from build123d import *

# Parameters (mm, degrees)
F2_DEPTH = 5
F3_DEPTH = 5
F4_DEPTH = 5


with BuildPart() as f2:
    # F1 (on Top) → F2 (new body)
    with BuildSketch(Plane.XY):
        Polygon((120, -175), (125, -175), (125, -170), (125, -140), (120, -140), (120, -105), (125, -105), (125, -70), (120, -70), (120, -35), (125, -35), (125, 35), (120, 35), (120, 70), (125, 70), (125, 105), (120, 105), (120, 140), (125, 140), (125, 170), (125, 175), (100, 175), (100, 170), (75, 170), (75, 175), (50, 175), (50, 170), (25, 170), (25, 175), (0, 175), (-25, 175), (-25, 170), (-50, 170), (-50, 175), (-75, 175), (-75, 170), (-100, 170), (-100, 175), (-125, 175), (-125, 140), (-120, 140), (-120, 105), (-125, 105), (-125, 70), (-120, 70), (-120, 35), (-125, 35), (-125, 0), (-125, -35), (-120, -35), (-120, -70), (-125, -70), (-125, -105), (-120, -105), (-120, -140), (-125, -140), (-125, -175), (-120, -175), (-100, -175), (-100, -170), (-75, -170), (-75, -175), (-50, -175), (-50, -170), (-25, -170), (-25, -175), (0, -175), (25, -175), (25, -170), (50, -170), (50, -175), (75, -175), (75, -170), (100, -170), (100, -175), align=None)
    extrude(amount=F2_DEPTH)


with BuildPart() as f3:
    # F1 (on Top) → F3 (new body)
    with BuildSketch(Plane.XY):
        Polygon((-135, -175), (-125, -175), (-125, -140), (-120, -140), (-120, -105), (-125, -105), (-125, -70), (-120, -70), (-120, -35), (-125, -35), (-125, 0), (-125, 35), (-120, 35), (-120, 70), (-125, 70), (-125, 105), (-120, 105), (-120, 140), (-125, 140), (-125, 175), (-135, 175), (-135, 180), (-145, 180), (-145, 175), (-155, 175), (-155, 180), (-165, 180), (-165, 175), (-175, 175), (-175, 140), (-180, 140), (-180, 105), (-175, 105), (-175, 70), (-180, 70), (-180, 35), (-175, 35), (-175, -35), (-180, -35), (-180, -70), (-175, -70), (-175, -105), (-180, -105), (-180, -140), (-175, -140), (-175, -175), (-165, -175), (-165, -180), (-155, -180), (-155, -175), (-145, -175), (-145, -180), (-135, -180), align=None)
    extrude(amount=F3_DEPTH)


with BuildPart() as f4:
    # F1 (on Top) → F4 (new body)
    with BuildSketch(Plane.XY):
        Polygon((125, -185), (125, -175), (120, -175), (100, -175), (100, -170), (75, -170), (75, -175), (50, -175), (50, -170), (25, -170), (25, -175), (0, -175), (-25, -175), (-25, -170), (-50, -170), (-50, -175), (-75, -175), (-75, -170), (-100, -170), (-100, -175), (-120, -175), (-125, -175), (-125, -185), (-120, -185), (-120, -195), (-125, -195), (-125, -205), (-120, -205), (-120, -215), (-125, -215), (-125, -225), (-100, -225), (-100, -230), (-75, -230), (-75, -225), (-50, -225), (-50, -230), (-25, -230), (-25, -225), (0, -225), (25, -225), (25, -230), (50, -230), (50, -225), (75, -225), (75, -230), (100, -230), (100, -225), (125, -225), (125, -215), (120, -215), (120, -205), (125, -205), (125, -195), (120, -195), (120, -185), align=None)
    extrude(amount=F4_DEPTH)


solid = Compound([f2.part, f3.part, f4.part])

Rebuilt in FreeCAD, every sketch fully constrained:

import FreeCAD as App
import Part
import Sketcher
Q = App.Units.Quantity

doc = App.newDocument("Part")
body = doc.addObject("PartDesign::Body", "Body")

# Sketch on XY plane
sketch1 = body.newObject("Sketcher::SketchObject", "Sketch")
sketch1.AttachmentSupport = (doc.getObject("XY_Plane"), [""])
sketch1.MapMode = "FlatFace"
sketch1.addGeometry(Part.LineSegment(App.Vector(125, -175, 0), App.Vector(125, -140, 0)), False)
sketch1.addGeometry(Part.LineSegment(App.Vector(125, -140, 0), App.Vector(120, -140, 0)), False)
sketch1.addGeometry(Part.LineSegment(App.Vector(120, -140, 0), App.Vector(120, -105, 0)), False)
sketch1.addGeometry(Part.LineSegment(App.Vector(120, -105, 0), App.Vector(125, -105, 0)), False)
sketch1.addGeometry(Part.LineSegment(App.Vector(125, -105, 0), App.Vector(125, -70, 0)), False)
sketch1.addGeometry(Part.LineSegment(App.Vector(125, -70, 0), App.Vector(120, -70, 0)), False)
sketch1.addGeometry(Part.LineSegment(App.Vector(120, -70, 0), App.Vector(120, -35, 0)), False)
sketch1.addGeometry(Part.LineSegment(App.Vector(120, -35, 0), App.Vector(125, -35, 0)), False)
sketch1.addGeometry(Part.LineSegment(App.Vector(125, -35, 0), App.Vector(125, 35, 0)), False)
sketch1.addGeometry(Part.LineSegment(App.Vector(125, 35, 0), App.Vector(120, 35, 0)), False)
sketch1.addGeometry(Part.LineSegment(App.Vector(120, 35, 0), App.Vector(120, 70, 0)), False)
sketch1.addGeometry(Part.LineSegment(App.Vector(120, 70, 0), App.Vector(125, 70, 0)), False)
sketch1.addGeometry(Part.LineSegment(App.Vector(125, 70, 0), App.Vector(125, 105, 0)), False)
sketch1.addGeometry(Part.LineSegment(App.Vector(125, 105, 0), App.Vector(120, 105, 0)), False)
sketch1.addGeometry(Part.LineSegment(App.Vector(120, 105, 0), App.Vector(120, 140, 0)), False)
sketch1.addGeometry(Part.LineSegment(App.Vector(120, 140, 0), App.Vector(125, 140, 0)), False)
sketch1.addGeometry(Part.LineSegment(App.Vector(125, 140, 0), App.Vector(125, 175, 0)), False)
sketch1.addGeometry(Part.LineSegment(App.Vector(125, 175, 0), App.Vector(100, 175, 0)), False)
sketch1.addGeometry(Part.LineSegment(App.Vector(100, 175, 0), App.Vector(100, 170, 0)), False)
sketch1.addGeometry(Part.LineSegment(App.Vector(100, 170, 0), App.Vector(75, 170, 0)), False)
sketch1.addGeometry(Part.LineSegment(App.Vector(75, 170, 0), App.Vector(75, 175, 0)), False)
sketch1.addGeometry(Part.LineSegment(App.Vector(75, 175, 0), App.Vector(50, 175, 0)), False)
sketch1.addGeometry(Part.LineSegment(App.Vector(50, 175, 0), App.Vector(50, 170, 0)), False)
sketch1.addGeometry(Part.LineSegment(App.Vector(50, 170, 0), App.Vector(25, 170, 0)), False)
sketch1.addGeometry(Part.LineSegment(App.Vector(25, 170, 0), App.Vector(25, 175, 0)), False)
sketch1.addGeometry(Part.LineSegment(App.Vector(25, 175, 0), App.Vector(-25, 175, 0)), False)
sketch1.addGeometry(Part.LineSegment(App.Vector(-25, 175, 0), App.Vector(-25, 170, 0)), False)
sketch1.addGeometry(Part.LineSegment(App.Vector(-25, 170, 0), App.Vector(-50, 170, 0)), False)
sketch1.addGeometry(Part.LineSegment(App.Vector(-50, 170, 0), App.Vector(-50, 175, 0)), False)
sketch1.addGeometry(Part.LineSegment(App.Vector(-50, 175, 0), App.Vector(-75, 175, 0)), False)
sketch1.addGeometry(Part.LineSegment(App.Vector(-75, 175, 0), App.Vector(-75, 170, 0)), False)
sketch1.addGeometry(Part.LineSegment(App.Vector(-75, 170, 0), App.Vector(-100, 170, 0)), False)
sketch1.addGeometry(Part.LineSegment(App.Vector(-100, 170, 0), App.Vector(-100, 175, 0)), False)
sketch1.addGeometry(Part.LineSegment(App.Vector(-100, 175, 0), App.Vector(-125, 175, 0)), False)
sketch1.addGeometry(Part.LineSegment(App.Vector(-125, 175, 0), App.Vector(-125, 140, 0)), False)
sketch1.addGeometry(Part.LineSegment(App.Vector(-125, 140, 0), App.Vector(-120, 140, 0)), False)
sketch1.addGeometry(Part.LineSegment(App.Vector(-120, 140, 0), App.Vector(-120, 105, 0)), False)
sketch1.addGeometry(Part.LineSegment(App.Vector(-120, 105, 0), App.Vector(-125, 105, 0)), False)
sketch1.addGeometry(Part.LineSegment(App.Vector(-125, 105, 0), App.Vector(-125, 70, 0)), False)
sketch1.addGeometry(Part.LineSegment(App.Vector(-125, 70, 0), App.Vector(-120, 70, 0)), False)
sketch1.addGeometry(Part.LineSegment(App.Vector(-120, 70, 0), App.Vector(-120, 35, 0)), False)
sketch1.addGeometry(Part.LineSegment(App.Vector(-120, 35, 0), App.Vector(-125, 35, 0)), False)
sketch1.addGeometry(Part.LineSegment(App.Vector(-125, 35, 0), App.Vector(-125, -35, 0)), False)
sketch1.addGeometry(Part.LineSegment(App.Vector(-125, -35, 0), App.Vector(-120, -35, 0)), False)
sketch1.addGeometry(Part.LineSegment(App.Vector(-120, -35, 0), App.Vector(-120, -70, 0)), False)
sketch1.addGeometry(Part.LineSegment(App.Vector(-120, -70, 0), App.Vector(-125, -70, 0)), False)
sketch1.addGeometry(Part.LineSegment(App.Vector(-125, -70, 0), App.Vector(-125, -105, 0)), False)
sketch1.addGeometry(Part.LineSegment(App.Vector(-125, -105, 0), App.Vector(-120, -105, 0)), False)
sketch1.addGeometry(Part.LineSegment(App.Vector(-120, -105, 0), App.Vector(-120, -140, 0)), False)
sketch1.addGeometry(Part.LineSegment(App.Vector(-120, -140, 0), App.Vector(-125, -140, 0)), False)
sketch1.addGeometry(Part.LineSegment(App.Vector(-125, -140, 0), App.Vector(-125, -175, 0)), False)
sketch1.addGeometry(Part.LineSegment(App.Vector(-125, -175, 0), App.Vector(-100, -175, 0)), False)
sketch1.addGeometry(Part.LineSegment(App.Vector(-100, -175, 0), App.Vector(-100, -170, 0)), False)
sketch1.addGeometry(Part.LineSegment(App.Vector(-100, -170, 0), App.Vector(-75, -170, 0)), False)
sketch1.addGeometry(Part.LineSegment(App.Vector(-75, -170, 0), App.Vector(-75, -175, 0)), False)
sketch1.addGeometry(Part.LineSegment(App.Vector(-75, -175, 0), App.Vector(-50, -175, 0)), False)
sketch1.addGeometry(Part.LineSegment(App.Vector(-50, -175, 0), App.Vector(-50, -170, 0)), False)
sketch1.addGeometry(Part.LineSegment(App.Vector(-50, -170, 0), App.Vector(-25, -170, 0)), False)
sketch1.addGeometry(Part.LineSegment(App.Vector(-25, -170, 0), App.Vector(-25, -175, 0)), False)
sketch1.addGeometry(Part.LineSegment(App.Vector(-25, -175, 0), App.Vector(25, -175, 0)), False)
sketch1.addGeometry(Part.LineSegment(App.Vector(25, -175, 0), App.Vector(25, -170, 0)), False)
sketch1.addGeometry(Part.LineSegment(App.Vector(25, -170, 0), App.Vector(50, -170, 0)), False)
sketch1.addGeometry(Part.LineSegment(App.Vector(50, -170, 0), App.Vector(50, -175, 0)), False)
sketch1.addGeometry(Part.LineSegment(App.Vector(50, -175, 0), App.Vector(75, -175, 0)), False)
sketch1.addGeometry(Part.LineSegment(App.Vector(75, -175, 0), App.Vector(75, -170, 0)), False)
sketch1.addGeometry(Part.LineSegment(App.Vector(75, -170, 0), App.Vector(100, -170, 0)), False)
sketch1.addGeometry(Part.LineSegment(App.Vector(100, -170, 0), App.Vector(100, -175, 0)), False)
sketch1.addGeometry(Part.LineSegment(App.Vector(100, -175, 0), App.Vector(125, -175, 0)), False)
sketch1.addConstraint(Sketcher.Constraint("Coincident", 0, 2, 1, 1))
sketch1.addConstraint(Sketcher.Constraint("Coincident", 1, 2, 2, 1))
sketch1.addConstraint(Sketcher.Constraint("Coincident", 2, 2, 3, 1))
sketch1.addConstraint(Sketcher.Constraint("Coincident", 3, 2, 4, 1))
sketch1.addConstraint(Sketcher.Constraint("Coincident", 4, 2, 5, 1))
sketch1.addConstraint(Sketcher.Constraint("Coincident", 5, 2, 6, 1))
sketch1.addConstraint(Sketcher.Constraint("Coincident", 6, 2, 7, 1))
sketch1.addConstraint(Sketcher.Constraint("Coincident", 7, 2, 8, 1))
sketch1.addConstraint(Sketcher.Constraint("Coincident", 8, 2, 9, 1))
sketch1.addConstraint(Sketcher.Constraint("Coincident", 9, 2, 10, 1))
sketch1.addConstraint(Sketcher.Constraint("Coincident", 10, 2, 11, 1))
sketch1.addConstraint(Sketcher.Constraint("Coincident", 11, 2, 12, 1))
sketch1.addConstraint(Sketcher.Constraint("Coincident", 12, 2, 13, 1))
sketch1.addConstraint(Sketcher.Constraint("Coincident", 13, 2, 14, 1))
sketch1.addConstraint(Sketcher.Constraint("Coincident", 14, 2, 15, 1))
sketch1.addConstraint(Sketcher.Constraint("Coincident", 15, 2, 16, 1))
sketch1.addConstraint(Sketcher.Constraint("Coincident", 16, 2, 17, 1))
sketch1.addConstraint(Sketcher.Constraint("Coincident", 17, 2, 18, 1))
sketch1.addConstraint(Sketcher.Constraint("Coincident", 18, 2, 19, 1))
sketch1.addConstraint(Sketcher.Constraint("Coincident", 19, 2, 20, 1))
sketch1.addConstraint(Sketcher.Constraint("Coincident", 20, 2, 21, 1))
sketch1.addConstraint(Sketcher.Constraint("Coincident", 21, 2, 22, 1))
sketch1.addConstraint(Sketcher.Constraint("Coincident", 22, 2, 23, 1))
sketch1.addConstraint(Sketcher.Constraint("Coincident", 23, 2, 24, 1))
sketch1.addConstraint(Sketcher.Constraint("Coincident", 24, 2, 25, 1))
sketch1.addConstraint(Sketcher.Constraint("Coincident", 25, 2, 26, 1))
sketch1.addConstraint(Sketcher.Constraint("Coincident", 26, 2, 27, 1))
sketch1.addConstraint(Sketcher.Constraint("Coincident", 27, 2, 28, 1))
sketch1.addConstraint(Sketcher.Constraint("Coincident", 28, 2, 29, 1))
sketch1.addConstraint(Sketcher.Constraint("Coincident", 29, 2, 30, 1))
sketch1.addConstraint(Sketcher.Constraint("Coincident", 30, 2, 31, 1))
sketch1.addConstraint(Sketcher.Constraint("Coincident", 31, 2, 32, 1))
sketch1.addConstraint(Sketcher.Constraint("Coincident", 32, 2, 33, 1))
sketch1.addConstraint(Sketcher.Constraint("Coincident", 33, 2, 34, 1))
sketch1.addConstraint(Sketcher.Constraint("Coincident", 34, 2, 35, 1))
sketch1.addConstraint(Sketcher.Constraint("Coincident", 35, 2, 36, 1))
sketch1.addConstraint(Sketcher.Constraint("Coincident", 36, 2, 37, 1))
sketch1.addConstraint(Sketcher.Constraint("Coincident", 37, 2, 38, 1))
sketch1.addConstraint(Sketcher.Constraint("Coincident", 38, 2, 39, 1))
sketch1.addConstraint(Sketcher.Constraint("Coincident", 39, 2, 40, 1))
sketch1.addConstraint(Sketcher.Constraint("Coincident", 40, 2, 41, 1))
sketch1.addConstraint(Sketcher.Constraint("Coincident", 41, 2, 42, 1))
sketch1.addConstraint(Sketcher.Constraint("Coincident", 42, 2, 43, 1))
sketch1.addConstraint(Sketcher.Constraint("Coincident", 43, 2, 44, 1))
sketch1.addConstraint(Sketcher.Constraint("Coincident", 44, 2, 45, 1))
sketch1.addConstraint(Sketcher.Constraint("Coincident", 45, 2, 46, 1))
sketch1.addConstraint(Sketcher.Constraint("Coincident", 46, 2, 47, 1))
sketch1.addConstraint(Sketcher.Constraint("Coincident", 47, 2, 48, 1))
sketch1.addConstraint(Sketcher.Constraint("Coincident", 48, 2, 49, 1))
sketch1.addConstraint(Sketcher.Constraint("Coincident", 49, 2, 50, 1))
sketch1.addConstraint(Sketcher.Constraint("Coincident", 50, 2, 51, 1))
sketch1.addConstraint(Sketcher.Constraint("Coincident", 51, 2, 52, 1))
sketch1.addConstraint(Sketcher.Constraint("Coincident", 52, 2, 53, 1))
sketch1.addConstraint(Sketcher.Constraint("Coincident", 53, 2, 54, 1))
sketch1.addConstraint(Sketcher.Constraint("Coincident", 54, 2, 55, 1))
sketch1.addConstraint(Sketcher.Constraint("Coincident", 55, 2, 56, 1))
sketch1.addConstraint(Sketcher.Constraint("Coincident", 56, 2, 57, 1))
sketch1.addConstraint(Sketcher.Constraint("Coincident", 57, 2, 58, 1))
sketch1.addConstraint(Sketcher.Constraint("Coincident", 58, 2, 59, 1))
sketch1.addConstraint(Sketcher.Constraint("Coincident", 59, 2, 60, 1))
sketch1.addConstraint(Sketcher.Constraint("Coincident", 60, 2, 61, 1))
sketch1.addConstraint(Sketcher.Constraint("Coincident", 61, 2, 62, 1))
sketch1.addConstraint(Sketcher.Constraint("Coincident", 62, 2, 63, 1))
sketch1.addConstraint(Sketcher.Constraint("Coincident", 63, 2, 64, 1))
sketch1.addConstraint(Sketcher.Constraint("Coincident", 64, 2, 65, 1))
sketch1.addConstraint(Sketcher.Constraint("Coincident", 65, 2, 66, 1))
sketch1.addConstraint(Sketcher.Constraint("Coincident", 66, 2, 67, 1))
sketch1.addConstraint(Sketcher.Constraint("Coincident", 67, 2, 0, 1))
sketch1.addConstraint(Sketcher.Constraint("Vertical", 0))
sketch1.addConstraint(Sketcher.Constraint("Horizontal", 1))
sketch1.addConstraint(Sketcher.Constraint("Vertical", 2))
sketch1.addConstraint(Sketcher.Constraint("Horizontal", 3))
sketch1.addConstraint(Sketcher.Constraint("Vertical", 4))
sketch1.addConstraint(Sketcher.Constraint("Horizontal", 5))
sketch1.addConstraint(Sketcher.Constraint("Vertical", 6))
sketch1.addConstraint(Sketcher.Constraint("Horizontal", 7))
sketch1.addConstraint(Sketcher.Constraint("Vertical", 8))
sketch1.addConstraint(Sketcher.Constraint("Horizontal", 9))
sketch1.addConstraint(Sketcher.Constraint("Vertical", 10))
sketch1.addConstraint(Sketcher.Constraint("Horizontal", 11))
sketch1.addConstraint(Sketcher.Constraint("Vertical", 12))
sketch1.addConstraint(Sketcher.Constraint("Horizontal", 13))
sketch1.addConstraint(Sketcher.Constraint("Vertical", 14))
sketch1.addConstraint(Sketcher.Constraint("Horizontal", 15))
sketch1.addConstraint(Sketcher.Constraint("Vertical", 16))
sketch1.addConstraint(Sketcher.Constraint("Horizontal", 17))
sketch1.addConstraint(Sketcher.Constraint("Vertical", 18))
sketch1.addConstraint(Sketcher.Constraint("Horizontal", 19))
sketch1.addConstraint(Sketcher.Constraint("Vertical", 20))
sketch1.addConstraint(Sketcher.Constraint("Horizontal", 21))
sketch1.addConstraint(Sketcher.Constraint("Vertical", 22))
sketch1.addConstraint(Sketcher.Constraint("Horizontal", 23))
sketch1.addConstraint(Sketcher.Constraint("Vertical", 24))
sketch1.addConstraint(Sketcher.Constraint("Horizontal", 25))
sketch1.addConstraint(Sketcher.Constraint("Vertical", 26))
sketch1.addConstraint(Sketcher.Constraint("Horizontal", 27))
sketch1.addConstraint(Sketcher.Constraint("Vertical", 28))
sketch1.addConstraint(Sketcher.Constraint("Horizontal", 29))
sketch1.addConstraint(Sketcher.Constraint("Vertical", 30))
sketch1.addConstraint(Sketcher.Constraint("Horizontal", 31))
sketch1.addConstraint(Sketcher.Constraint("Vertical", 32))
sketch1.addConstraint(Sketcher.Constraint("Horizontal", 33))
sketch1.addConstraint(Sketcher.Constraint("Vertical", 34))
sketch1.addConstraint(Sketcher.Constraint("Horizontal", 35))
sketch1.addConstraint(Sketcher.Constraint("Vertical", 36))
sketch1.addConstraint(Sketcher.Constraint("Horizontal", 37))
sketch1.addConstraint(Sketcher.Constraint("Vertical", 38))
sketch1.addConstraint(Sketcher.Constraint("Horizontal", 39))
sketch1.addConstraint(Sketcher.Constraint("Vertical", 40))
sketch1.addConstraint(Sketcher.Constraint("Horizontal", 41))
sketch1.addConstraint(Sketcher.Constraint("Vertical", 42))
sketch1.addConstraint(Sketcher.Constraint("Horizontal", 43))
sketch1.addConstraint(Sketcher.Constraint("Vertical", 44))
sketch1.addConstraint(Sketcher.Constraint("Horizontal", 45))
sketch1.addConstraint(Sketcher.Constraint("Vertical", 46))
sketch1.addConstraint(Sketcher.Constraint("Horizontal", 47))
sketch1.addConstraint(Sketcher.Constraint("Vertical", 48))
sketch1.addConstraint(Sketcher.Constraint("Horizontal", 49))
sketch1.addConstraint(Sketcher.Constraint("Vertical", 50))
sketch1.addConstraint(Sketcher.Constraint("Horizontal", 51))
sketch1.addConstraint(Sketcher.Constraint("Vertical", 52))
sketch1.addConstraint(Sketcher.Constraint("Horizontal", 53))
sketch1.addConstraint(Sketcher.Constraint("Vertical", 54))
sketch1.addConstraint(Sketcher.Constraint("Horizontal", 55))
sketch1.addConstraint(Sketcher.Constraint("Vertical", 56))
sketch1.addConstraint(Sketcher.Constraint("Horizontal", 57))
sketch1.addConstraint(Sketcher.Constraint("Vertical", 58))
sketch1.addConstraint(Sketcher.Constraint("Horizontal", 59))
sketch1.addConstraint(Sketcher.Constraint("Vertical", 60))
sketch1.addConstraint(Sketcher.Constraint("Horizontal", 61))
sketch1.addConstraint(Sketcher.Constraint("Vertical", 62))
sketch1.addConstraint(Sketcher.Constraint("Horizontal", 63))
sketch1.addConstraint(Sketcher.Constraint("Vertical", 64))
sketch1.addConstraint(Sketcher.Constraint("Horizontal", 65))
sketch1.addConstraint(Sketcher.Constraint("Vertical", 66))
sketch1.addConstraint(Sketcher.Constraint("Horizontal", 67))
sketch1.addConstraint(Sketcher.Constraint("Symmetric", 0, 2, 34, 2, -1, 1))
sketch1.addConstraint(Sketcher.Constraint("Symmetric", 2, 2, 36, 2, -1, 1))
sketch1.addConstraint(Sketcher.Constraint("Symmetric", 4, 2, 38, 2, -1, 1))
sketch1.addConstraint(Sketcher.Constraint("Symmetric", 6, 2, 40, 2, -1, 1))
sketch1.addConstraint(Sketcher.Constraint("Symmetric", 8, 2, 42, 2, -1, 1))
sketch1.addConstraint(Sketcher.Constraint("Symmetric", 10, 2, 44, 2, -1, 1))
sketch1.addConstraint(Sketcher.Constraint("Symmetric", 12, 2, 46, 2, -1, 1))
sketch1.addConstraint(Sketcher.Constraint("Symmetric", 14, 2, 48, 2, -1, 1))
sketch1.addConstraint(Sketcher.Constraint("Symmetric", 16, 2, 50, 2, -1, 1))
sketch1.addConstraint(Sketcher.Constraint("Symmetric", 18, 2, 52, 2, -1, 1))
sketch1.addConstraint(Sketcher.Constraint("Symmetric", 20, 2, 54, 2, -1, 1))
sketch1.addConstraint(Sketcher.Constraint("Symmetric", 22, 2, 56, 2, -1, 1))
sketch1.addConstraint(Sketcher.Constraint("Symmetric", 24, 2, 58, 2, -1, 1))
sketch1.addConstraint(Sketcher.Constraint("Symmetric", 26, 2, 60, 2, -1, 1))
sketch1.addConstraint(Sketcher.Constraint("Symmetric", 28, 2, 62, 2, -1, 1))
sketch1.addConstraint(Sketcher.Constraint("Symmetric", 30, 2, 64, 2, -1, 1))
sketch1.addConstraint(Sketcher.Constraint("Symmetric", 32, 2, 66, 2, -1, 1))
sketch1.addConstraint(Sketcher.Constraint("Symmetric", 23, 2, 26, 2, -2))
sketch1.addConstraint(Sketcher.Constraint("Symmetric", 21, 2, 28, 2, -2))
sketch1.addConstraint(Sketcher.Constraint("Symmetric", 19, 2, 30, 2, -2))
sketch1.addConstraint(Sketcher.Constraint("Symmetric", 17, 2, 32, 2, -2))
sketch1.addConstraint(Sketcher.Constraint("Symmetric", 15, 2, 34, 2, -2))
sketch1.addConstraint(Sketcher.Constraint("Symmetric", 13, 2, 36, 2, -2))
sketch1.addConstraint(Sketcher.Constraint("Symmetric", 11, 2, 38, 2, -2))
sketch1.addConstraint(Sketcher.Constraint("Symmetric", 9, 2, 40, 2, -2))
sketch1.addConstraint(Sketcher.Constraint("Horizontal", 17, 2, 20, 2))
sketch1.addConstraint(Sketcher.Constraint("Horizontal", 19, 2, 22, 2))
sketch1.addConstraint(Sketcher.Constraint("Horizontal", 21, 2, 24, 2))
sketch1.addConstraint(Sketcher.Constraint("Vertical", 0, 2, 3, 2))
sketch1.addConstraint(Sketcher.Constraint("Vertical", 2, 2, 5, 2))
sketch1.addConstraint(Sketcher.Constraint("Vertical", 4, 2, 7, 2))
sketch1.addConstraint(Sketcher.Constraint("Equal", 17, 19))
sketch1.addConstraint(Sketcher.Constraint("Equal", 19, 21))
sketch1.addConstraint(Sketcher.Constraint("Equal", 21, 23))
sketch1.addConstraint(Sketcher.Constraint("Equal", 0, 2))
sketch1.addConstraint(Sketcher.Constraint("Equal", 2, 4))
sketch1.addConstraint(Sketcher.Constraint("Equal", 4, 6))
sketch1.addConstraint(Sketcher.Constraint("Equal", 49, 18))
sketch1.addConstraint(Sketcher.Constraint("DistanceX", 1, 2, 1, 1, Q("5 mm")))
sketch1.addConstraint(Sketcher.Constraint("DistanceX", 17, 2, 17, 1, Q("25 mm")))
sketch1.addConstraint(Sketcher.Constraint("DistanceX", 25, 2, 25, 1, Q("50 mm")))
sketch1.addConstraint(Sketcher.Constraint("DistanceY", 0, 1, 0, 2, Q("35 mm")))
sketch1.addConstraint(Sketcher.Constraint("DistanceY", 8, 1, 8, 2, Q("70 mm")))
pad1 = body.newObject("PartDesign::Pad", "Pad")
pad1.Profile = sketch1
pad1.Length = 5
body2 = doc.addObject("PartDesign::Body", "Body001")

# Sketch on XY plane
sketch2 = body2.newObject("Sketcher::SketchObject", "Sketch001")
sketch2.AttachmentSupport = (doc.getObject("XY_Plane001"), [""])
sketch2.MapMode = "FlatFace"
sketch2.addGeometry(Part.LineSegment(App.Vector(-135, -175, 0), App.Vector(-125, -175, 0)), False)
sketch2.addGeometry(Part.LineSegment(App.Vector(-125, -175, 0), App.Vector(-125, -140, 0)), False)
sketch2.addGeometry(Part.LineSegment(App.Vector(-125, -140, 0), App.Vector(-120, -140, 0)), False)
sketch2.addGeometry(Part.LineSegment(App.Vector(-120, -140, 0), App.Vector(-120, -105, 0)), False)
sketch2.addGeometry(Part.LineSegment(App.Vector(-120, -105, 0), App.Vector(-125, -105, 0)), False)
sketch2.addGeometry(Part.LineSegment(App.Vector(-125, -105, 0), App.Vector(-125, -70, 0)), False)
sketch2.addGeometry(Part.LineSegment(App.Vector(-125, -70, 0), App.Vector(-120, -70, 0)), False)
sketch2.addGeometry(Part.LineSegment(App.Vector(-120, -70, 0), App.Vector(-120, -35, 0)), False)
sketch2.addGeometry(Part.LineSegment(App.Vector(-120, -35, 0), App.Vector(-125, -35, 0)), False)
sketch2.addGeometry(Part.LineSegment(App.Vector(-125, -35, 0), App.Vector(-125, 35, 0)), False)
sketch2.addGeometry(Part.LineSegment(App.Vector(-125, 35, 0), App.Vector(-120, 35, 0)), False)
sketch2.addGeometry(Part.LineSegment(App.Vector(-120, 35, 0), App.Vector(-120, 70, 0)), False)
sketch2.addGeometry(Part.LineSegment(App.Vector(-120, 70, 0), App.Vector(-125, 70, 0)), False)
sketch2.addGeometry(Part.LineSegment(App.Vector(-125, 70, 0), App.Vector(-125, 105, 0)), False)
sketch2.addGeometry(Part.LineSegment(App.Vector(-125, 105, 0), App.Vector(-120, 105, 0)), False)
sketch2.addGeometry(Part.LineSegment(App.Vector(-120, 105, 0), App.Vector(-120, 140, 0)), False)
sketch2.addGeometry(Part.LineSegment(App.Vector(-120, 140, 0), App.Vector(-125, 140, 0)), False)
sketch2.addGeometry(Part.LineSegment(App.Vector(-125, 140, 0), App.Vector(-125, 175, 0)), False)
sketch2.addGeometry(Part.LineSegment(App.Vector(-125, 175, 0), App.Vector(-135, 175, 0)), False)
sketch2.addGeometry(Part.LineSegment(App.Vector(-135, 175, 0), App.Vector(-135, 180, 0)), False)
sketch2.addGeometry(Part.LineSegment(App.Vector(-135, 180, 0), App.Vector(-145, 180, 0)), False)
sketch2.addGeometry(Part.LineSegment(App.Vector(-145, 180, 0), App.Vector(-145, 175, 0)), False)
sketch2.addGeometry(Part.LineSegment(App.Vector(-145, 175, 0), App.Vector(-155, 175, 0)), False)
sketch2.addGeometry(Part.LineSegment(App.Vector(-155, 175, 0), App.Vector(-155, 180, 0)), False)
sketch2.addGeometry(Part.LineSegment(App.Vector(-155, 180, 0), App.Vector(-165, 180, 0)), False)
sketch2.addGeometry(Part.LineSegment(App.Vector(-165, 180, 0), App.Vector(-165, 175, 0)), False)
sketch2.addGeometry(Part.LineSegment(App.Vector(-165, 175, 0), App.Vector(-175, 175, 0)), False)
sketch2.addGeometry(Part.LineSegment(App.Vector(-175, 175, 0), App.Vector(-175, 140, 0)), False)
sketch2.addGeometry(Part.LineSegment(App.Vector(-175, 140, 0), App.Vector(-180, 140, 0)), False)
sketch2.addGeometry(Part.LineSegment(App.Vector(-180, 140, 0), App.Vector(-180, 105, 0)), False)
sketch2.addGeometry(Part.LineSegment(App.Vector(-180, 105, 0), App.Vector(-175, 105, 0)), False)
sketch2.addGeometry(Part.LineSegment(App.Vector(-175, 105, 0), App.Vector(-175, 70, 0)), False)
sketch2.addGeometry(Part.LineSegment(App.Vector(-175, 70, 0), App.Vector(-180, 70, 0)), False)
sketch2.addGeometry(Part.LineSegment(App.Vector(-180, 70, 0), App.Vector(-180, 35, 0)), False)
sketch2.addGeometry(Part.LineSegment(App.Vector(-180, 35, 0), App.Vector(-175, 35, 0)), False)
sketch2.addGeometry(Part.LineSegment(App.Vector(-175, 35, 0), App.Vector(-175, -35, 0)), False)
sketch2.addGeometry(Part.LineSegment(App.Vector(-175, -35, 0), App.Vector(-180, -35, 0)), False)
sketch2.addGeometry(Part.LineSegment(App.Vector(-180, -35, 0), App.Vector(-180, -70, 0)), False)
sketch2.addGeometry(Part.LineSegment(App.Vector(-180, -70, 0), App.Vector(-175, -70, 0)), False)
sketch2.addGeometry(Part.LineSegment(App.Vector(-175, -70, 0), App.Vector(-175, -105, 0)), False)
sketch2.addGeometry(Part.LineSegment(App.Vector(-175, -105, 0), App.Vector(-180, -105, 0)), False)
sketch2.addGeometry(Part.LineSegment(App.Vector(-180, -105, 0), App.Vector(-180, -140, 0)), False)
sketch2.addGeometry(Part.LineSegment(App.Vector(-180, -140, 0), App.Vector(-175, -140, 0)), False)
sketch2.addGeometry(Part.LineSegment(App.Vector(-175, -140, 0), App.Vector(-175, -175, 0)), False)
sketch2.addGeometry(Part.LineSegment(App.Vector(-175, -175, 0), App.Vector(-165, -175, 0)), False)
sketch2.addGeometry(Part.LineSegment(App.Vector(-165, -175, 0), App.Vector(-165, -180, 0)), False)
sketch2.addGeometry(Part.LineSegment(App.Vector(-165, -180, 0), App.Vector(-155, -180, 0)), False)
sketch2.addGeometry(Part.LineSegment(App.Vector(-155, -180, 0), App.Vector(-155, -175, 0)), False)
sketch2.addGeometry(Part.LineSegment(App.Vector(-155, -175, 0), App.Vector(-145, -175, 0)), False)
sketch2.addGeometry(Part.LineSegment(App.Vector(-145, -175, 0), App.Vector(-145, -180, 0)), False)
sketch2.addGeometry(Part.LineSegment(App.Vector(-145, -180, 0), App.Vector(-135, -180, 0)), False)
sketch2.addGeometry(Part.LineSegment(App.Vector(-135, -180, 0), App.Vector(-135, -175, 0)), False)
sketch2.addConstraint(Sketcher.Constraint("Coincident", 0, 2, 1, 1))
sketch2.addConstraint(Sketcher.Constraint("Coincident", 1, 2, 2, 1))
sketch2.addConstraint(Sketcher.Constraint("Coincident", 2, 2, 3, 1))
sketch2.addConstraint(Sketcher.Constraint("Coincident", 3, 2, 4, 1))
sketch2.addConstraint(Sketcher.Constraint("Coincident", 4, 2, 5, 1))
sketch2.addConstraint(Sketcher.Constraint("Coincident", 5, 2, 6, 1))
sketch2.addConstraint(Sketcher.Constraint("Coincident", 6, 2, 7, 1))
sketch2.addConstraint(Sketcher.Constraint("Coincident", 7, 2, 8, 1))
sketch2.addConstraint(Sketcher.Constraint("Coincident", 8, 2, 9, 1))
sketch2.addConstraint(Sketcher.Constraint("Coincident", 9, 2, 10, 1))
sketch2.addConstraint(Sketcher.Constraint("Coincident", 10, 2, 11, 1))
sketch2.addConstraint(Sketcher.Constraint("Coincident", 11, 2, 12, 1))
sketch2.addConstraint(Sketcher.Constraint("Coincident", 12, 2, 13, 1))
sketch2.addConstraint(Sketcher.Constraint("Coincident", 13, 2, 14, 1))
sketch2.addConstraint(Sketcher.Constraint("Coincident", 14, 2, 15, 1))
sketch2.addConstraint(Sketcher.Constraint("Coincident", 15, 2, 16, 1))
sketch2.addConstraint(Sketcher.Constraint("Coincident", 16, 2, 17, 1))
sketch2.addConstraint(Sketcher.Constraint("Coincident", 17, 2, 18, 1))
sketch2.addConstraint(Sketcher.Constraint("Coincident", 18, 2, 19, 1))
sketch2.addConstraint(Sketcher.Constraint("Coincident", 19, 2, 20, 1))
sketch2.addConstraint(Sketcher.Constraint("Coincident", 20, 2, 21, 1))
sketch2.addConstraint(Sketcher.Constraint("Coincident", 21, 2, 22, 1))
sketch2.addConstraint(Sketcher.Constraint("Coincident", 22, 2, 23, 1))
sketch2.addConstraint(Sketcher.Constraint("Coincident", 23, 2, 24, 1))
sketch2.addConstraint(Sketcher.Constraint("Coincident", 24, 2, 25, 1))
sketch2.addConstraint(Sketcher.Constraint("Coincident", 25, 2, 26, 1))
sketch2.addConstraint(Sketcher.Constraint("Coincident", 26, 2, 27, 1))
sketch2.addConstraint(Sketcher.Constraint("Coincident", 27, 2, 28, 1))
sketch2.addConstraint(Sketcher.Constraint("Coincident", 28, 2, 29, 1))
sketch2.addConstraint(Sketcher.Constraint("Coincident", 29, 2, 30, 1))
sketch2.addConstraint(Sketcher.Constraint("Coincident", 30, 2, 31, 1))
sketch2.addConstraint(Sketcher.Constraint("Coincident", 31, 2, 32, 1))
sketch2.addConstraint(Sketcher.Constraint("Coincident", 32, 2, 33, 1))
sketch2.addConstraint(Sketcher.Constraint("Coincident", 33, 2, 34, 1))
sketch2.addConstraint(Sketcher.Constraint("Coincident", 34, 2, 35, 1))
sketch2.addConstraint(Sketcher.Constraint("Coincident", 35, 2, 36, 1))
sketch2.addConstraint(Sketcher.Constraint("Coincident", 36, 2, 37, 1))
sketch2.addConstraint(Sketcher.Constraint("Coincident", 37, 2, 38, 1))
sketch2.addConstraint(Sketcher.Constraint("Coincident", 38, 2, 39, 1))
sketch2.addConstraint(Sketcher.Constraint("Coincident", 39, 2, 40, 1))
sketch2.addConstraint(Sketcher.Constraint("Coincident", 40, 2, 41, 1))
sketch2.addConstraint(Sketcher.Constraint("Coincident", 41, 2, 42, 1))
sketch2.addConstraint(Sketcher.Constraint("Coincident", 42, 2, 43, 1))
sketch2.addConstraint(Sketcher.Constraint("Coincident", 43, 2, 44, 1))
sketch2.addConstraint(Sketcher.Constraint("Coincident", 44, 2, 45, 1))
sketch2.addConstraint(Sketcher.Constraint("Coincident", 45, 2, 46, 1))
sketch2.addConstraint(Sketcher.Constraint("Coincident", 46, 2, 47, 1))
sketch2.addConstraint(Sketcher.Constraint("Coincident", 47, 2, 48, 1))
sketch2.addConstraint(Sketcher.Constraint("Coincident", 48, 2, 49, 1))
sketch2.addConstraint(Sketcher.Constraint("Coincident", 49, 2, 50, 1))
sketch2.addConstraint(Sketcher.Constraint("Coincident", 50, 2, 51, 1))
sketch2.addConstraint(Sketcher.Constraint("Coincident", 51, 2, 0, 1))
sketch2.addConstraint(Sketcher.Constraint("Horizontal", 0))
sketch2.addConstraint(Sketcher.Constraint("Vertical", 1))
sketch2.addConstraint(Sketcher.Constraint("Horizontal", 2))
sketch2.addConstraint(Sketcher.Constraint("Vertical", 3))
sketch2.addConstraint(Sketcher.Constraint("Horizontal", 4))
sketch2.addConstraint(Sketcher.Constraint("Vertical", 5))
sketch2.addConstraint(Sketcher.Constraint("Horizontal", 6))
sketch2.addConstraint(Sketcher.Constraint("Vertical", 7))
sketch2.addConstraint(Sketcher.Constraint("Horizontal", 8))
sketch2.addConstraint(Sketcher.Constraint("Vertical", 9))
sketch2.addConstraint(Sketcher.Constraint("Horizontal", 10))
sketch2.addConstraint(Sketcher.Constraint("Vertical", 11))
sketch2.addConstraint(Sketcher.Constraint("Horizontal", 12))
sketch2.addConstraint(Sketcher.Constraint("Vertical", 13))
sketch2.addConstraint(Sketcher.Constraint("Horizontal", 14))
sketch2.addConstraint(Sketcher.Constraint("Vertical", 15))
sketch2.addConstraint(Sketcher.Constraint("Horizontal", 16))
sketch2.addConstraint(Sketcher.Constraint("Vertical", 17))
sketch2.addConstraint(Sketcher.Constraint("Horizontal", 18))
sketch2.addConstraint(Sketcher.Constraint("Vertical", 19))
sketch2.addConstraint(Sketcher.Constraint("Horizontal", 20))
sketch2.addConstraint(Sketcher.Constraint("Vertical", 21))
sketch2.addConstraint(Sketcher.Constraint("Horizontal", 22))
sketch2.addConstraint(Sketcher.Constraint("Vertical", 23))
sketch2.addConstraint(Sketcher.Constraint("Horizontal", 24))
sketch2.addConstraint(Sketcher.Constraint("Vertical", 25))
sketch2.addConstraint(Sketcher.Constraint("Horizontal", 26))
sketch2.addConstraint(Sketcher.Constraint("Vertical", 27))
sketch2.addConstraint(Sketcher.Constraint("Horizontal", 28))
sketch2.addConstraint(Sketcher.Constraint("Vertical", 29))
sketch2.addConstraint(Sketcher.Constraint("Horizontal", 30))
sketch2.addConstraint(Sketcher.Constraint("Vertical", 31))
sketch2.addConstraint(Sketcher.Constraint("Horizontal", 32))
sketch2.addConstraint(Sketcher.Constraint("Vertical", 33))
sketch2.addConstraint(Sketcher.Constraint("Horizontal", 34))
sketch2.addConstraint(Sketcher.Constraint("Vertical", 35))
sketch2.addConstraint(Sketcher.Constraint("Horizontal", 36))
sketch2.addConstraint(Sketcher.Constraint("Vertical", 37))
sketch2.addConstraint(Sketcher.Constraint("Horizontal", 38))
sketch2.addConstraint(Sketcher.Constraint("Vertical", 39))
sketch2.addConstraint(Sketcher.Constraint("Horizontal", 40))
sketch2.addConstraint(Sketcher.Constraint("Vertical", 41))
sketch2.addConstraint(Sketcher.Constraint("Horizontal", 42))
sketch2.addConstraint(Sketcher.Constraint("Vertical", 43))
sketch2.addConstraint(Sketcher.Constraint("Horizontal", 44))
sketch2.addConstraint(Sketcher.Constraint("Vertical", 45))
sketch2.addConstraint(Sketcher.Constraint("Horizontal", 46))
sketch2.addConstraint(Sketcher.Constraint("Vertical", 47))
sketch2.addConstraint(Sketcher.Constraint("Horizontal", 48))
sketch2.addConstraint(Sketcher.Constraint("Vertical", 49))
sketch2.addConstraint(Sketcher.Constraint("Horizontal", 50))
sketch2.addConstraint(Sketcher.Constraint("Vertical", 51))
sketch2.addConstraint(Sketcher.Constraint("Symmetric", 7, 2, 10, 2, -1))
sketch2.addConstraint(Sketcher.Constraint("Symmetric", 5, 2, 12, 2, -1))
sketch2.addConstraint(Sketcher.Constraint("Symmetric", 3, 2, 14, 2, -1))
sketch2.addConstraint(Sketcher.Constraint("Symmetric", 1, 2, 16, 2, -1))
sketch2.addConstraint(Sketcher.Constraint("Symmetric", 33, 2, 36, 2, -1))
sketch2.addConstraint(Sketcher.Constraint("Symmetric", 31, 2, 38, 2, -1))
sketch2.addConstraint(Sketcher.Constraint("Symmetric", 29, 2, 40, 2, -1))
sketch2.addConstraint(Sketcher.Constraint("Symmetric", 27, 2, 42, 2, -1))
sketch2.addConstraint(Sketcher.Constraint("Symmetric", 25, 2, 44, 2, -1))
sketch2.addConstraint(Sketcher.Constraint("Symmetric", 23, 2, 46, 2, -1))
sketch2.addConstraint(Sketcher.Constraint("Symmetric", 21, 2, 48, 2, -1))
sketch2.addConstraint(Sketcher.Constraint("Symmetric", 19, 2, 50, 2, -1))
sketch2.addConstraint(Sketcher.Constraint("Horizontal", 18, 2, 21, 2))
sketch2.addConstraint(Sketcher.Constraint("Horizontal", 20, 2, 23, 2))
sketch2.addConstraint(Sketcher.Constraint("Horizontal", 22, 2, 25, 2))
sketch2.addConstraint(Sketcher.Constraint("Horizontal", 16, 2, 27, 2))
sketch2.addConstraint(Sketcher.Constraint("Horizontal", 14, 2, 29, 2))
sketch2.addConstraint(Sketcher.Constraint("Horizontal", 12, 2, 31, 2))
sketch2.addConstraint(Sketcher.Constraint("Horizontal", 10, 2, 33, 2))
sketch2.addConstraint(Sketcher.Constraint("Horizontal", 0, 2, 43, 2))
sketch2.addConstraint(Sketcher.Constraint("Vertical", 1, 2, 4, 2))
sketch2.addConstraint(Sketcher.Constraint("Vertical", 3, 2, 6, 2))
sketch2.addConstraint(Sketcher.Constraint("Vertical", 5, 2, 8, 2))
sketch2.addConstraint(Sketcher.Constraint("Vertical", 27, 2, 30, 2))
sketch2.addConstraint(Sketcher.Constraint("Vertical", 29, 2, 32, 2))
sketch2.addConstraint(Sketcher.Constraint("Vertical", 31, 2, 34, 2))
sketch2.addConstraint(Sketcher.Constraint("Equal", 18, 20))
sketch2.addConstraint(Sketcher.Constraint("Equal", 20, 22))
sketch2.addConstraint(Sketcher.Constraint("Equal", 22, 24))
sketch2.addConstraint(Sketcher.Constraint("Equal", 24, 26))
sketch2.addConstraint(Sketcher.Constraint("Equal", 16, 28))
sketch2.addConstraint(Sketcher.Constraint("Equal", 1, 3))
sketch2.addConstraint(Sketcher.Constraint("Equal", 3, 5))
sketch2.addConstraint(Sketcher.Constraint("Equal", 5, 7))
sketch2.addConstraint(Sketcher.Constraint("Equal", 42, 19))
sketch2.addConstraint(Sketcher.Constraint("DistanceX", 0, 1, 0, 2, Q("10 mm")))
sketch2.addConstraint(Sketcher.Constraint("DistanceX", 2, 1, 2, 2, Q("5 mm")))
sketch2.addConstraint(Sketcher.Constraint("DistanceY", 1, 1, 1, 2, Q("35 mm")))
sketch2.addConstraint(Sketcher.Constraint("DistanceY", 9, 1, 9, 2, Q("70 mm")))
sketch2.addConstraint(Sketcher.Constraint("DistanceX", 0, 2, -1, 1, Q("125 mm")))
pad2 = body2.newObject("PartDesign::Pad", "Pad001")
pad2.Profile = sketch2
pad2.Length = 5
body3 = doc.addObject("PartDesign::Body", "Body002")

# Sketch on XY plane
sketch3 = body3.newObject("Sketcher::SketchObject", "Sketch002")
sketch3.AttachmentSupport = (doc.getObject("XY_Plane002"), [""])
sketch3.MapMode = "FlatFace"
sketch3.addGeometry(Part.LineSegment(App.Vector(125, -185, 0), App.Vector(125, -175, 0)), False)
sketch3.addGeometry(Part.LineSegment(App.Vector(125, -175, 0), App.Vector(100, -175, 0)), False)
sketch3.addGeometry(Part.LineSegment(App.Vector(100, -175, 0), App.Vector(100, -170, 0)), False)
sketch3.addGeometry(Part.LineSegment(App.Vector(100, -170, 0), App.Vector(75, -170, 0)), False)
sketch3.addGeometry(Part.LineSegment(App.Vector(75, -170, 0), App.Vector(75, -175, 0)), False)
sketch3.addGeometry(Part.LineSegment(App.Vector(75, -175, 0), App.Vector(50, -175, 0)), False)
sketch3.addGeometry(Part.LineSegment(App.Vector(50, -175, 0), App.Vector(50, -170, 0)), False)
sketch3.addGeometry(Part.LineSegment(App.Vector(50, -170, 0), App.Vector(25, -170, 0)), False)
sketch3.addGeometry(Part.LineSegment(App.Vector(25, -170, 0), App.Vector(25, -175, 0)), False)
sketch3.addGeometry(Part.LineSegment(App.Vector(25, -175, 0), App.Vector(-25, -175, 0)), False)
sketch3.addGeometry(Part.LineSegment(App.Vector(-25, -175, 0), App.Vector(-25, -170, 0)), False)
sketch3.addGeometry(Part.LineSegment(App.Vector(-25, -170, 0), App.Vector(-50, -170, 0)), False)
sketch3.addGeometry(Part.LineSegment(App.Vector(-50, -170, 0), App.Vector(-50, -175, 0)), False)
sketch3.addGeometry(Part.LineSegment(App.Vector(-50, -175, 0), App.Vector(-75, -175, 0)), False)
sketch3.addGeometry(Part.LineSegment(App.Vector(-75, -175, 0), App.Vector(-75, -170, 0)), False)
sketch3.addGeometry(Part.LineSegment(App.Vector(-75, -170, 0), App.Vector(-100, -170, 0)), False)
sketch3.addGeometry(Part.LineSegment(App.Vector(-100, -170, 0), App.Vector(-100, -175, 0)), False)
sketch3.addGeometry(Part.LineSegment(App.Vector(-100, -175, 0), App.Vector(-125, -175, 0)), False)
sketch3.addGeometry(Part.LineSegment(App.Vector(-125, -175, 0), App.Vector(-125, -185, 0)), False)
sketch3.addGeometry(Part.LineSegment(App.Vector(-125, -185, 0), App.Vector(-120, -185, 0)), False)
sketch3.addGeometry(Part.LineSegment(App.Vector(-120, -185, 0), App.Vector(-120, -195, 0)), False)
sketch3.addGeometry(Part.LineSegment(App.Vector(-120, -195, 0), App.Vector(-125, -195, 0)), False)
sketch3.addGeometry(Part.LineSegment(App.Vector(-125, -195, 0), App.Vector(-125, -205, 0)), False)
sketch3.addGeometry(Part.LineSegment(App.Vector(-125, -205, 0), App.Vector(-120, -205, 0)), False)
sketch3.addGeometry(Part.LineSegment(App.Vector(-120, -205, 0), App.Vector(-120, -215, 0)), False)
sketch3.addGeometry(Part.LineSegment(App.Vector(-120, -215, 0), App.Vector(-125, -215, 0)), False)
sketch3.addGeometry(Part.LineSegment(App.Vector(-125, -215, 0), App.Vector(-125, -225, 0)), False)
sketch3.addGeometry(Part.LineSegment(App.Vector(-125, -225, 0), App.Vector(-100, -225, 0)), False)
sketch3.addGeometry(Part.LineSegment(App.Vector(-100, -225, 0), App.Vector(-100, -230, 0)), False)
sketch3.addGeometry(Part.LineSegment(App.Vector(-100, -230, 0), App.Vector(-75, -230, 0)), False)
sketch3.addGeometry(Part.LineSegment(App.Vector(-75, -230, 0), App.Vector(-75, -225, 0)), False)
sketch3.addGeometry(Part.LineSegment(App.Vector(-75, -225, 0), App.Vector(-50, -225, 0)), False)
sketch3.addGeometry(Part.LineSegment(App.Vector(-50, -225, 0), App.Vector(-50, -230, 0)), False)
sketch3.addGeometry(Part.LineSegment(App.Vector(-50, -230, 0), App.Vector(-25, -230, 0)), False)
sketch3.addGeometry(Part.LineSegment(App.Vector(-25, -230, 0), App.Vector(-25, -225, 0)), False)
sketch3.addGeometry(Part.LineSegment(App.Vector(-25, -225, 0), App.Vector(25, -225, 0)), False)
sketch3.addGeometry(Part.LineSegment(App.Vector(25, -225, 0), App.Vector(25, -230, 0)), False)
sketch3.addGeometry(Part.LineSegment(App.Vector(25, -230, 0), App.Vector(50, -230, 0)), False)
sketch3.addGeometry(Part.LineSegment(App.Vector(50, -230, 0), App.Vector(50, -225, 0)), False)
sketch3.addGeometry(Part.LineSegment(App.Vector(50, -225, 0), App.Vector(75, -225, 0)), False)
sketch3.addGeometry(Part.LineSegment(App.Vector(75, -225, 0), App.Vector(75, -230, 0)), False)
sketch3.addGeometry(Part.LineSegment(App.Vector(75, -230, 0), App.Vector(100, -230, 0)), False)
sketch3.addGeometry(Part.LineSegment(App.Vector(100, -230, 0), App.Vector(100, -225, 0)), False)
sketch3.addGeometry(Part.LineSegment(App.Vector(100, -225, 0), App.Vector(125, -225, 0)), False)
sketch3.addGeometry(Part.LineSegment(App.Vector(125, -225, 0), App.Vector(125, -215, 0)), False)
sketch3.addGeometry(Part.LineSegment(App.Vector(125, -215, 0), App.Vector(120, -215, 0)), False)
sketch3.addGeometry(Part.LineSegment(App.Vector(120, -215, 0), App.Vector(120, -205, 0)), False)
sketch3.addGeometry(Part.LineSegment(App.Vector(120, -205, 0), App.Vector(125, -205, 0)), False)
sketch3.addGeometry(Part.LineSegment(App.Vector(125, -205, 0), App.Vector(125, -195, 0)), False)
sketch3.addGeometry(Part.LineSegment(App.Vector(125, -195, 0), App.Vector(120, -195, 0)), False)
sketch3.addGeometry(Part.LineSegment(App.Vector(120, -195, 0), App.Vector(120, -185, 0)), False)
sketch3.addGeometry(Part.LineSegment(App.Vector(120, -185, 0), App.Vector(125, -185, 0)), False)
sketch3.addConstraint(Sketcher.Constraint("Coincident", 0, 2, 1, 1))
sketch3.addConstraint(Sketcher.Constraint("Coincident", 1, 2, 2, 1))
sketch3.addConstraint(Sketcher.Constraint("Coincident", 2, 2, 3, 1))
sketch3.addConstraint(Sketcher.Constraint("Coincident", 3, 2, 4, 1))
sketch3.addConstraint(Sketcher.Constraint("Coincident", 4, 2, 5, 1))
sketch3.addConstraint(Sketcher.Constraint("Coincident", 5, 2, 6, 1))
sketch3.addConstraint(Sketcher.Constraint("Coincident", 6, 2, 7, 1))
sketch3.addConstraint(Sketcher.Constraint("Coincident", 7, 2, 8, 1))
sketch3.addConstraint(Sketcher.Constraint("Coincident", 8, 2, 9, 1))
sketch3.addConstraint(Sketcher.Constraint("Coincident", 9, 2, 10, 1))
sketch3.addConstraint(Sketcher.Constraint("Coincident", 10, 2, 11, 1))
sketch3.addConstraint(Sketcher.Constraint("Coincident", 11, 2, 12, 1))
sketch3.addConstraint(Sketcher.Constraint("Coincident", 12, 2, 13, 1))
sketch3.addConstraint(Sketcher.Constraint("Coincident", 13, 2, 14, 1))
sketch3.addConstraint(Sketcher.Constraint("Coincident", 14, 2, 15, 1))
sketch3.addConstraint(Sketcher.Constraint("Coincident", 15, 2, 16, 1))
sketch3.addConstraint(Sketcher.Constraint("Coincident", 16, 2, 17, 1))
sketch3.addConstraint(Sketcher.Constraint("Coincident", 17, 2, 18, 1))
sketch3.addConstraint(Sketcher.Constraint("Coincident", 18, 2, 19, 1))
sketch3.addConstraint(Sketcher.Constraint("Coincident", 19, 2, 20, 1))
sketch3.addConstraint(Sketcher.Constraint("Coincident", 20, 2, 21, 1))
sketch3.addConstraint(Sketcher.Constraint("Coincident", 21, 2, 22, 1))
sketch3.addConstraint(Sketcher.Constraint("Coincident", 22, 2, 23, 1))
sketch3.addConstraint(Sketcher.Constraint("Coincident", 23, 2, 24, 1))
sketch3.addConstraint(Sketcher.Constraint("Coincident", 24, 2, 25, 1))
sketch3.addConstraint(Sketcher.Constraint("Coincident", 25, 2, 26, 1))
sketch3.addConstraint(Sketcher.Constraint("Coincident", 26, 2, 27, 1))
sketch3.addConstraint(Sketcher.Constraint("Coincident", 27, 2, 28, 1))
sketch3.addConstraint(Sketcher.Constraint("Coincident", 28, 2, 29, 1))
sketch3.addConstraint(Sketcher.Constraint("Coincident", 29, 2, 30, 1))
sketch3.addConstraint(Sketcher.Constraint("Coincident", 30, 2, 31, 1))
sketch3.addConstraint(Sketcher.Constraint("Coincident", 31, 2, 32, 1))
sketch3.addConstraint(Sketcher.Constraint("Coincident", 32, 2, 33, 1))
sketch3.addConstraint(Sketcher.Constraint("Coincident", 33, 2, 34, 1))
sketch3.addConstraint(Sketcher.Constraint("Coincident", 34, 2, 35, 1))
sketch3.addConstraint(Sketcher.Constraint("Coincident", 35, 2, 36, 1))
sketch3.addConstraint(Sketcher.Constraint("Coincident", 36, 2, 37, 1))
sketch3.addConstraint(Sketcher.Constraint("Coincident", 37, 2, 38, 1))
sketch3.addConstraint(Sketcher.Constraint("Coincident", 38, 2, 39, 1))
sketch3.addConstraint(Sketcher.Constraint("Coincident", 39, 2, 40, 1))
sketch3.addConstraint(Sketcher.Constraint("Coincident", 40, 2, 41, 1))
sketch3.addConstraint(Sketcher.Constraint("Coincident", 41, 2, 42, 1))
sketch3.addConstraint(Sketcher.Constraint("Coincident", 42, 2, 43, 1))
sketch3.addConstraint(Sketcher.Constraint("Coincident", 43, 2, 44, 1))
sketch3.addConstraint(Sketcher.Constraint("Coincident", 44, 2, 45, 1))
sketch3.addConstraint(Sketcher.Constraint("Coincident", 45, 2, 46, 1))
sketch3.addConstraint(Sketcher.Constraint("Coincident", 46, 2, 47, 1))
sketch3.addConstraint(Sketcher.Constraint("Coincident", 47, 2, 48, 1))
sketch3.addConstraint(Sketcher.Constraint("Coincident", 48, 2, 49, 1))
sketch3.addConstraint(Sketcher.Constraint("Coincident", 49, 2, 50, 1))
sketch3.addConstraint(Sketcher.Constraint("Coincident", 50, 2, 51, 1))
sketch3.addConstraint(Sketcher.Constraint("Coincident", 51, 2, 0, 1))
sketch3.addConstraint(Sketcher.Constraint("Vertical", 0))
sketch3.addConstraint(Sketcher.Constraint("Horizontal", 1))
sketch3.addConstraint(Sketcher.Constraint("Vertical", 2))
sketch3.addConstraint(Sketcher.Constraint("Horizontal", 3))
sketch3.addConstraint(Sketcher.Constraint("Vertical", 4))
sketch3.addConstraint(Sketcher.Constraint("Horizontal", 5))
sketch3.addConstraint(Sketcher.Constraint("Vertical", 6))
sketch3.addConstraint(Sketcher.Constraint("Horizontal", 7))
sketch3.addConstraint(Sketcher.Constraint("Vertical", 8))
sketch3.addConstraint(Sketcher.Constraint("Horizontal", 9))
sketch3.addConstraint(Sketcher.Constraint("Vertical", 10))
sketch3.addConstraint(Sketcher.Constraint("Horizontal", 11))
sketch3.addConstraint(Sketcher.Constraint("Vertical", 12))
sketch3.addConstraint(Sketcher.Constraint("Horizontal", 13))
sketch3.addConstraint(Sketcher.Constraint("Vertical", 14))
sketch3.addConstraint(Sketcher.Constraint("Horizontal", 15))
sketch3.addConstraint(Sketcher.Constraint("Vertical", 16))
sketch3.addConstraint(Sketcher.Constraint("Horizontal", 17))
sketch3.addConstraint(Sketcher.Constraint("Vertical", 18))
sketch3.addConstraint(Sketcher.Constraint("Horizontal", 19))
sketch3.addConstraint(Sketcher.Constraint("Vertical", 20))
sketch3.addConstraint(Sketcher.Constraint("Horizontal", 21))
sketch3.addConstraint(Sketcher.Constraint("Vertical", 22))
sketch3.addConstraint(Sketcher.Constraint("Horizontal", 23))
sketch3.addConstraint(Sketcher.Constraint("Vertical", 24))
sketch3.addConstraint(Sketcher.Constraint("Horizontal", 25))
sketch3.addConstraint(Sketcher.Constraint("Vertical", 26))
sketch3.addConstraint(Sketcher.Constraint("Horizontal", 27))
sketch3.addConstraint(Sketcher.Constraint("Vertical", 28))
sketch3.addConstraint(Sketcher.Constraint("Horizontal", 29))
sketch3.addConstraint(Sketcher.Constraint("Vertical", 30))
sketch3.addConstraint(Sketcher.Constraint("Horizontal", 31))
sketch3.addConstraint(Sketcher.Constraint("Vertical", 32))
sketch3.addConstraint(Sketcher.Constraint("Horizontal", 33))
sketch3.addConstraint(Sketcher.Constraint("Vertical", 34))
sketch3.addConstraint(Sketcher.Constraint("Horizontal", 35))
sketch3.addConstraint(Sketcher.Constraint("Vertical", 36))
sketch3.addConstraint(Sketcher.Constraint("Horizontal", 37))
sketch3.addConstraint(Sketcher.Constraint("Vertical", 38))
sketch3.addConstraint(Sketcher.Constraint("Horizontal", 39))
sketch3.addConstraint(Sketcher.Constraint("Vertical", 40))
sketch3.addConstraint(Sketcher.Constraint("Horizontal", 41))
sketch3.addConstraint(Sketcher.Constraint("Vertical", 42))
sketch3.addConstraint(Sketcher.Constraint("Horizontal", 43))
sketch3.addConstraint(Sketcher.Constraint("Vertical", 44))
sketch3.addConstraint(Sketcher.Constraint("Horizontal", 45))
sketch3.addConstraint(Sketcher.Constraint("Vertical", 46))
sketch3.addConstraint(Sketcher.Constraint("Horizontal", 47))
sketch3.addConstraint(Sketcher.Constraint("Vertical", 48))
sketch3.addConstraint(Sketcher.Constraint("Horizontal", 49))
sketch3.addConstraint(Sketcher.Constraint("Vertical", 50))
sketch3.addConstraint(Sketcher.Constraint("Horizontal", 51))
sketch3.addConstraint(Sketcher.Constraint("Symmetric", 7, 2, 10, 2, -2))
sketch3.addConstraint(Sketcher.Constraint("Symmetric", 5, 2, 12, 2, -2))
sketch3.addConstraint(Sketcher.Constraint("Symmetric", 3, 2, 14, 2, -2))
sketch3.addConstraint(Sketcher.Constraint("Symmetric", 1, 2, 16, 2, -2))
sketch3.addConstraint(Sketcher.Constraint("Symmetric", 33, 2, 36, 2, -2))
sketch3.addConstraint(Sketcher.Constraint("Symmetric", 31, 2, 38, 2, -2))
sketch3.addConstraint(Sketcher.Constraint("Symmetric", 29, 2, 40, 2, -2))
sketch3.addConstraint(Sketcher.Constraint("Symmetric", 27, 2, 42, 2, -2))
sketch3.addConstraint(Sketcher.Constraint("Symmetric", 25, 2, 44, 2, -2))
sketch3.addConstraint(Sketcher.Constraint("Symmetric", 23, 2, 46, 2, -2))
sketch3.addConstraint(Sketcher.Constraint("Symmetric", 21, 2, 48, 2, -2))
sketch3.addConstraint(Sketcher.Constraint("Symmetric", 19, 2, 50, 2, -2))
sketch3.addConstraint(Sketcher.Constraint("Horizontal", 1, 2, 4, 2))
sketch3.addConstraint(Sketcher.Constraint("Horizontal", 3, 2, 6, 2))
sketch3.addConstraint(Sketcher.Constraint("Horizontal", 5, 2, 8, 2))
sketch3.addConstraint(Sketcher.Constraint("Horizontal", 27, 2, 30, 2))
sketch3.addConstraint(Sketcher.Constraint("Horizontal", 29, 2, 32, 2))
sketch3.addConstraint(Sketcher.Constraint("Horizontal", 31, 2, 34, 2))
sketch3.addConstraint(Sketcher.Constraint("Vertical", 18, 2, 21, 2))
sketch3.addConstraint(Sketcher.Constraint("Vertical", 20, 2, 23, 2))
sketch3.addConstraint(Sketcher.Constraint("Vertical", 22, 2, 25, 2))
sketch3.addConstraint(Sketcher.Constraint("Vertical", 16, 2, 27, 2))
sketch3.addConstraint(Sketcher.Constraint("Vertical", 14, 2, 29, 2))
sketch3.addConstraint(Sketcher.Constraint("Vertical", 12, 2, 31, 2))
sketch3.addConstraint(Sketcher.Constraint("Vertical", 10, 2, 33, 2))
sketch3.addConstraint(Sketcher.Constraint("Vertical", 0, 2, 43, 2))
sketch3.addConstraint(Sketcher.Constraint("Equal", 1, 3))
sketch3.addConstraint(Sketcher.Constraint("Equal", 3, 5))
sketch3.addConstraint(Sketcher.Constraint("Equal", 5, 7))
sketch3.addConstraint(Sketcher.Constraint("Equal", 51, 2))
sketch3.addConstraint(Sketcher.Constraint("Equal", 18, 20))
sketch3.addConstraint(Sketcher.Constraint("Equal", 20, 22))
sketch3.addConstraint(Sketcher.Constraint("Equal", 22, 24))
sketch3.addConstraint(Sketcher.Constraint("Equal", 24, 26))
sketch3.addConstraint(Sketcher.Constraint("Equal", 16, 28))
sketch3.addConstraint(Sketcher.Constraint("DistanceX", 1, 2, 1, 1, Q("25 mm")))
sketch3.addConstraint(Sketcher.Constraint("DistanceX", 9, 2, 9, 1, Q("50 mm")))
sketch3.addConstraint(Sketcher.Constraint("DistanceX", 19, 1, 19, 2, Q("5 mm")))
sketch3.addConstraint(Sketcher.Constraint("DistanceY", 0, 1, 0, 2, Q("10 mm")))
sketch3.addConstraint(Sketcher.Constraint("DistanceY", 0, 2, -1, 1, Q("175 mm")))
pad3 = body3.newObject("PartDesign::Pad", "Pad002")
pad3.Profile = sketch3
pad3.Length = 5

doc.recompute()
